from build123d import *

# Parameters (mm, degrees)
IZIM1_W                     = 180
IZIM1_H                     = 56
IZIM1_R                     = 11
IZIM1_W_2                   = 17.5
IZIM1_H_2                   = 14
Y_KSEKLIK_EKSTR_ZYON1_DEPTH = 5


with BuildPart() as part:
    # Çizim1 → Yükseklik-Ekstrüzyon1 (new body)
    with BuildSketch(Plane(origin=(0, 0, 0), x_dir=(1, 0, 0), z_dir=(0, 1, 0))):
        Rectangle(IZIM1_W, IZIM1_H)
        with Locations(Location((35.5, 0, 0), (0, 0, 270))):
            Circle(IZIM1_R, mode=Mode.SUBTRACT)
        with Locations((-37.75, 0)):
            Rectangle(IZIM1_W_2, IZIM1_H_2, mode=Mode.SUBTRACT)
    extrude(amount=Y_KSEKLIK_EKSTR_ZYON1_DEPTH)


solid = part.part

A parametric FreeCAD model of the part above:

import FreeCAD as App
import Part
import Sketcher

V = App.Vector
Q = App.Units.Quantity


def add_polygon(sketch, points):
    """Adds a closed chain of lines whose ends are joined by coincident constraints."""
    first, n = sketch.GeometryCount, len(points)
    for a, b in zip(points, points[1:] + points[:1]):
        sketch.addGeometry(Part.LineSegment(App.Vector(*a, 0), App.Vector(*b, 0)), False)
    for i in range(n):
        sketch.addConstraint(Sketcher.Constraint("Coincident", first + i, 2, first + (i + 1) % n, 1))

doc = App.newDocument("Part")
params = doc.addObject("Spreadsheet::Sheet", "Params")
for row, (alias, value) in enumerate([
    ("sketch1_diameter", "22 mm"),
    ("sketch1_width", "180 mm"),
    ("sketch1_height", "56 mm"),
    ("sketch1_height2", "14 mm"),
    ("sketch1_width2", "17.5 mm"),
    ("pad1_length", "5 mm"),
], start=1):
    params.set(f"A{row}", alias)
    params.set(f"B{row}", "=" + value)
    params.setAlias(f"B{row}", alias)

body = doc.addObject("PartDesign::Body", "Body")

# Sketch on XZ plane
sketch1 = body.newObject("Sketcher::SketchObject", "Sketch")
sketch1.AttachmentSupport = (doc.getObject("XZ_Plane"), [""])
sketch1.MapMode = "FlatFace"
add_polygon(sketch1, [(-90, -28), (-90, 28), (90, 28), (90, -28)])  # lines 0-3
add_polygon(sketch1, [(-29, 7), (-46.5, 7), (-46.5, -7), (-29, -7)])  # lines 4-7
sketch1.addGeometry(Part.Circle(V(35.5, 0, 0), V(0, 0, 1), 11), False)  # 8
sketch1.addConstraint(Sketcher.Constraint("Vertical", 0))
sketch1.addConstraint(Sketcher.Constraint("Horizontal", 1))
sketch1.addConstraint(Sketcher.Constraint("Vertical", 2))
sketch1.addConstraint(Sketcher.Constraint("Horizontal", 3))
sketch1.addConstraint(Sketcher.Constraint("Horizontal", 4))
sketch1.addConstraint(Sketcher.Constraint("Vertical", 5))
sketch1.addConstraint(Sketcher.Constraint("Horizontal", 6))
sketch1.addConstraint(Sketcher.Constraint("Vertical", 7))
sketch1.addConstraint(Sketcher.Constraint("Symmetric", 0, 2, 2, 2, -1, 1))
sketch1.addConstraint(Sketcher.Constraint("PointOnObject", 8, 3, -1))
sketch1.addConstraint(Sketcher.Constraint("Diameter", 8, Q("22 mm")))
sketch1.addConstraint(Sketcher.Constraint("DistanceX", 1, 1, 1, 2, Q("180 mm")))
sketch1.addConstraint(Sketcher.Constraint("DistanceY", 0, 1, 0, 2, Q("56 mm")))
sketch1.addConstraint(Sketcher.Constraint("DistanceY", 5, 2, 5, 1, Q("14 mm")))
sketch1.addConstraint(Sketcher.Constraint("DistanceX", 4, 2, 4, 1, Q("17.5 mm")))
sketch1.addConstraint(Sketcher.Constraint("DistanceY", -1, 1, 4, 2, Q("7 mm")))
sketch1.addConstraint(Sketcher.Constraint("DistanceX", 6, 2, -1, 1, Q("29 mm")))
sketch1.addConstraint(Sketcher.Constraint("DistanceX", 4, 2, 8, 3, Q("82 mm")))
sketch1.setExpression("Constraints[18]", "Params.sketch1_diameter")
sketch1.setExpression("Constraints[19]", "Params.sketch1_width")
sketch1.setExpression("Constraints[20]", "Params.sketch1_height")
sketch1.setExpression("Constraints[21]", "Params.sketch1_height2")
sketch1.setExpression("Constraints[22]", "Params.sketch1_width2")
pad1 = body.newObject("PartDesign::Pad", "Pad")
pad1.Profile = sketch1
pad1.setExpression("Length", "Params.pad1_length")
pad1.Reversed = True

doc.recompute()
